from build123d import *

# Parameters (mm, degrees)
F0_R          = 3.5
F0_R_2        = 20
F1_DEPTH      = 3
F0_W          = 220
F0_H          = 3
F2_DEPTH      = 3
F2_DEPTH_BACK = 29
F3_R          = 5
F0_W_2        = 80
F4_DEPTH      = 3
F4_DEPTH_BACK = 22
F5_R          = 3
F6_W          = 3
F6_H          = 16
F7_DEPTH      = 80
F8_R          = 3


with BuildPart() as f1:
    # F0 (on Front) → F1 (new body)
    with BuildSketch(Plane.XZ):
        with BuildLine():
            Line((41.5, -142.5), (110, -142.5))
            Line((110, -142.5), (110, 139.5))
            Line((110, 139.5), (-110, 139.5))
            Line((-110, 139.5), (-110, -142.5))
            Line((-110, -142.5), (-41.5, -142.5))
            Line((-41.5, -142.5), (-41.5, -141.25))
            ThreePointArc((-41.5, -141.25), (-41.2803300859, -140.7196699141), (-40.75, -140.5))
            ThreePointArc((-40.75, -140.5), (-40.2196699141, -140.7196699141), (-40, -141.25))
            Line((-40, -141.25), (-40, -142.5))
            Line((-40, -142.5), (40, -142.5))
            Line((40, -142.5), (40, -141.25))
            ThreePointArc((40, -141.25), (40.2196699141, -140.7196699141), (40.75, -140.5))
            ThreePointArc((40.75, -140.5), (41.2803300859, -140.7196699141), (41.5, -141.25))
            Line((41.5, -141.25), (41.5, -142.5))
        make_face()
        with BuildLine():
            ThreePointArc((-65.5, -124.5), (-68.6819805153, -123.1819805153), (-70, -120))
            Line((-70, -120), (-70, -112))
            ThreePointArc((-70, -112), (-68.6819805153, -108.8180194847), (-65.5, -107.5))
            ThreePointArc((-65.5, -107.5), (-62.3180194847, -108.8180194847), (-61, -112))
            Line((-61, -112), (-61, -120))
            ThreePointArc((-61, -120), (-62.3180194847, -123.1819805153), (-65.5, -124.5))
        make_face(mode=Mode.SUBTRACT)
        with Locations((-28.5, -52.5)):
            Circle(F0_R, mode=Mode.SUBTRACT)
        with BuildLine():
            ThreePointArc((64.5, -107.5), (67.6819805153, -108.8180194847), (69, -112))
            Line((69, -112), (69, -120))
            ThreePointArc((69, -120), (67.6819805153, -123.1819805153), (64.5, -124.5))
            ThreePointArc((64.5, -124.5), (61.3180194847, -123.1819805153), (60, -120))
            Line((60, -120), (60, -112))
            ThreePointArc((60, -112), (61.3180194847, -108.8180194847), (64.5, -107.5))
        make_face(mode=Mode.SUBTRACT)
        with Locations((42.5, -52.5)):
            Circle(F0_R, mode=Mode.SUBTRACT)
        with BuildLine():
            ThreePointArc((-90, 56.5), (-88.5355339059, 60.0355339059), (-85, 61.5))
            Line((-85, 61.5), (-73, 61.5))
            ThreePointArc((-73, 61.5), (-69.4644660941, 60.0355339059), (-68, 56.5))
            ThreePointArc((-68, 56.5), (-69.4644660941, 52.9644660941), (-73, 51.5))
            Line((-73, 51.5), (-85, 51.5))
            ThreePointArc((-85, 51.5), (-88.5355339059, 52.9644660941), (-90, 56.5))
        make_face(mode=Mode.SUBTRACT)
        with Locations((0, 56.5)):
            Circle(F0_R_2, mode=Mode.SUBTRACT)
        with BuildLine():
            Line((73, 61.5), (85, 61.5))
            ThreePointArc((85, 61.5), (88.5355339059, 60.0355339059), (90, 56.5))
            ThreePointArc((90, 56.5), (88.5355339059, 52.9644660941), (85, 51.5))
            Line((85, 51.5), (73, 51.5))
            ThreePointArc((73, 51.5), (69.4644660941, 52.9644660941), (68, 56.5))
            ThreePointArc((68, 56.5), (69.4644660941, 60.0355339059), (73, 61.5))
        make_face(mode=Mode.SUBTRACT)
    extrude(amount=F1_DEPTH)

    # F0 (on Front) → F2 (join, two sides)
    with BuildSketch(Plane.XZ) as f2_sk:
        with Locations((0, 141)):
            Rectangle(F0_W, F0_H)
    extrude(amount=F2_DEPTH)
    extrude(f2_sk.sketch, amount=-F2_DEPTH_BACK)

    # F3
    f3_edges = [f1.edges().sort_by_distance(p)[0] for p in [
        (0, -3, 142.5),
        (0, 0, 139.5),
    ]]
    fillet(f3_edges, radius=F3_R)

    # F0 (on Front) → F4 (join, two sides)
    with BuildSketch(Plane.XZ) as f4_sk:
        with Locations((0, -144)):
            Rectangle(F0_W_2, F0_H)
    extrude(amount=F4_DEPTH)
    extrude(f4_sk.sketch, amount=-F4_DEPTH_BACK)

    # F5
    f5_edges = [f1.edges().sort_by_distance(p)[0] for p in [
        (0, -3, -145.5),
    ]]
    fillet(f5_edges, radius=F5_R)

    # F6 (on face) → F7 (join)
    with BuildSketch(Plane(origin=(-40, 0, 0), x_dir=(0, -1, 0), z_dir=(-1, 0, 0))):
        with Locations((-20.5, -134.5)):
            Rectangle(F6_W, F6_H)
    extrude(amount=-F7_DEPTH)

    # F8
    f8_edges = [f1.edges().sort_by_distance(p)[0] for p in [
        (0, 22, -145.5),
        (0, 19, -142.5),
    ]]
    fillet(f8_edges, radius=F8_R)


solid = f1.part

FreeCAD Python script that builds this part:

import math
import FreeCAD as App
import Part
import Sketcher

V = App.Vector


def edges_at(feature, points):
    """Names of the edges that pass closest to the given points."""
    edges = feature.Shape.Edges
    near = lambda p: min(range(len(edges)), key=lambda i: edges[i].distToShape(Part.Vertex(*p))[0])
    return sorted({f"Edge{near(p) + 1}" for p in points})

doc = App.newDocument("Part")
params = doc.addObject("Spreadsheet::Sheet", "Params")
for row, (alias, value) in enumerate([
    ("sketch1_diameter", "7 mm"),
    ("sketch1_diameter2", "40 mm"),
    ("sketch1_radius", "5 mm"),
    ("sketch1_radius2", "4.5 mm"),
    ("sketch1_width", "220 mm"),
    ("pad1_length", "3 mm"),
    ("sketch2_width", "220 mm"),
    ("sketch2_height", "3 mm"),
    ("pad2_length", "3 mm"),
    ("pad2_length2", "29 mm"),
    ("fillet_radius", "5 mm"),
    ("sketch3_width", "80 mm"),
    ("sketch3_height", "3 mm"),
    ("pad3_length", "3 mm"),
    ("pad3_length2", "22 mm"),
    ("fillet2_radius", "3 mm"),
    ("sketch4_width", "3 mm"),
    ("sketch4_height", "16 mm"),
    ("pad4_length", "80 mm"),
    ("fillet3_radius", "3 mm"),
], start=1):
    params.set(f"A{row}", alias)
    params.set(f"B{row}", "=" + value)
    params.setAlias(f"B{row}", alias)

body = doc.addObject("PartDesign::Body", "Body")

sketch1 = doc.addObject("Sketcher::SketchObject", "Sketch")
body.addObject(sketch1)
sketch1.AttachmentSupport = (doc.XZ_Plane, [""])
sketch1.MapMode = "FlatFace"
sketch1.addGeometry([
    Part.LineSegment(V(41.5, -142.5, 0), V(110, -142.5, 0)),
    Part.LineSegment(V(110, -142.5, 0), V(110, 139.5, 0)),
    Part.LineSegment(V(110, 139.5, 0), V(-110, 139.5, 0)),
    Part.LineSegment(V(-110, 139.5, 0), V(-110, -142.5, 0)),
    Part.LineSegment(V(-110, -142.5, 0), V(-41.5, -142.5, 0)),
    Part.LineSegment(V(-41.5, -142.5, 0), V(-41.5, -141.2, 0)),
    Part.ArcOfCircle(Part.Circle(V(-40.8, -141.2, 0), V(0, 0, 1), 0.8), math.radians(90), math.radians(180)),
    Part.ArcOfCircle(Part.Circle(V(-40.8, -141.2, 0), V(0, 0, 1), 0.8), math.radians(0), math.radians(90)),
    Part.LineSegment(V(-40, -141.2, 0), V(-40, -142.5, 0)),
    Part.LineSegment(V(-40, -142.5, 0), V(40, -142.5, 0)),
    Part.LineSegment(V(40, -142.5, 0), V(40, -141.2, 0)),
    Part.ArcOfCircle(Part.Circle(V(40.8, -141.2, 0), V(0, 0, 1), 0.8), math.radians(90), math.radians(180)),
    Part.ArcOfCircle(Part.Circle(V(40.8, -141.2, 0), V(0, 0, 1), 0.8), math.radians(0), math.radians(90)),
    Part.LineSegment(V(41.5, -141.2, 0), V(41.5, -142.5, 0)),
    Part.ArcOfCircle(Part.Circle(V(-65.5, -120, 0), V(0, 0, 1), 4.5), math.radians(-90), math.radians(0)),
    Part.ArcOfCircle(Part.Circle(V(-65.5, -120, 0), V(0, 0, 1), 4.5), math.radians(180), math.radians(270)),
    Part.LineSegment(V(-70, -120, 0), V(-70, -112, 0)),
    Part.ArcOfCircle(Part.Circle(V(-65.5, -112, 0), V(0, 0, 1), 4.5), math.radians(90), math.radians(180)),
    Part.ArcOfCircle(Part.Circle(V(-65.5, -112, 0), V(0, 0, 1), 4.5), math.radians(0), math.radians(90)),
    Part.LineSegment(V(-61, -112, 0), V(-61, -120, 0)),
    Part.Circle(V(-28.5, -52.5, 0), V(0, 0, 1), 3.5),
    Part.ArcOfCircle(Part.Circle(V(64.5, -112, 0), V(0, 0, 1), 4.5), math.radians(90), math.radians(180)),
    Part.ArcOfCircle(Part.Circle(V(64.5, -112, 0), V(0, 0, 1), 4.5), math.radians(0), math.radians(90)),
    Part.LineSegment(V(69, -112, 0), V(69, -120, 0)),
    Part.ArcOfCircle(Part.Circle(V(64.5, -120, 0), V(0, 0, 1), 4.5), math.radians(-90), math.radians(0)),
    Part.ArcOfCircle(Part.Circle(V(64.5, -120, 0), V(0, 0, 1), 4.5), math.radians(180), math.radians(270)),
    Part.LineSegment(V(60, -120, 0), V(60, -112, 0)),
    Part.Circle(V(42.5, -52.5, 0), V(0, 0, 1), 3.5),
    Part.ArcOfCircle(Part.Circle(V(-85, 56.5, 0), V(0, 0, 1), 5), math.radians(180), math.radians(270)),
    Part.ArcOfCircle(Part.Circle(V(-85, 56.5, 0), V(0, 0, 1), 5), math.radians(90), math.radians(180)),
    Part.LineSegment(V(-85, 61.5, 0), V(-73, 61.5, 0)),
    Part.ArcOfCircle(Part.Circle(V(-73, 56.5, 0), V(0, 0, 1), 5), math.radians(0), math.radians(90)),
    Part.ArcOfCircle(Part.Circle(V(-73, 56.5, 0), V(0, 0, 1), 5), math.radians(-90), math.radians(0)),
    Part.LineSegment(V(-73, 51.5, 0), V(-85, 51.5, 0)),
    Part.Circle(V(0, 56.5, 0), V(0, 0, 1), 20),
    Part.ArcOfCircle(Part.Circle(V(73, 56.5, 0), V(0, 0, 1), 5), math.radians(90), math.radians(180)),
    Part.LineSegment(V(73, 61.5, 0), V(85, 61.5, 0)),
    Part.ArcOfCircle(Part.Circle(V(85, 56.5, 0), V(0, 0, 1), 5), math.radians(0), math.radians(90)),
    Part.ArcOfCircle(Part.Circle(V(85, 56.5, 0), V(0, 0, 1), 5), math.radians(-90), math.radians(0)),
    Part.LineSegment(V(85, 51.5, 0), V(73, 51.5, 0)),
    Part.ArcOfCircle(Part.Circle(V(73, 56.5, 0), V(0, 0, 1), 5), math.radians(180), math.radians(270)),
], False)
sketch1.addConstraint([
    Sketcher.Constraint("Coincident", 0, 2, 1, 1),
    Sketcher.Constraint("Coincident", 1, 2, 2, 1),
    Sketcher.Constraint("Coincident", 2, 2, 3, 1),
    Sketcher.Constraint("Coincident", 3, 2, 4, 1),
    Sketcher.Constraint("Coincident", 4, 2, 5, 1),
    Sketcher.Constraint("Tangent", 5, 2, 6, 2),
    Sketcher.Constraint("Tangent", 6, 1, 7, 2),
    Sketcher.Constraint("Tangent", 7, 1, 8, 1),
    Sketcher.Constraint("Coincident", 8, 2, 9, 1),
    Sketcher.Constraint("Coincident", 9, 2, 10, 1),
    Sketcher.Constraint("Tangent", 10, 2, 11, 2),
    Sketcher.Constraint("Tangent", 11, 1, 12, 2),
    Sketcher.Constraint("Tangent", 12, 1, 13, 1),
    Sketcher.Constraint("Coincident", 13, 2, 0, 1),
    Sketcher.Constraint("Tangent", 14, 1, 15, 2),
    Sketcher.Constraint("Tangent", 15, 1, 16, 1),
    Sketcher.Constraint("Tangent", 16, 2, 17, 2),
    Sketcher.Constraint("Tangent", 17, 1, 18, 2),
    Sketcher.Constraint("Tangent", 18, 1, 19, 1),
    Sketcher.Constraint("Tangent", 19, 2, 14, 2),
    Sketcher.Constraint("Tangent", 21, 1, 22, 2),
    Sketcher.Constraint("Tangent", 22, 1, 23, 1),
    Sketcher.Constraint("Tangent", 23, 2, 24, 2),
    Sketcher.Constraint("Tangent", 24, 1, 25, 2),
    Sketcher.Constraint("Tangent", 25, 1, 26, 1),
    Sketcher.Constraint("Tangent", 26, 2, 21, 2),
    Sketcher.Constraint("Tangent", 28, 1, 29, 2),
    Sketcher.Constraint("Tangent", 29, 1, 30, 1),
    Sketcher.Constraint("Tangent", 30, 2, 31, 2),
    Sketcher.Constraint("Tangent", 31, 1, 32, 2),
    Sketcher.Constraint("Tangent", 32, 1, 33, 1),
    Sketcher.Constraint("Tangent", 33, 2, 28, 2),
    Sketcher.Constraint("Tangent", 35, 1, 36, 1),
    Sketcher.Constraint("Tangent", 36, 2, 37, 2),
    Sketcher.Constraint("Tangent", 37, 1, 38, 2),
    Sketcher.Constraint("Tangent", 38, 1, 39, 1),
    Sketcher.Constraint("Tangent", 39, 2, 40, 2),
    Sketcher.Constraint("Tangent", 40, 1, 35, 2),
    Sketcher.Constraint("Horizontal", 0),
    Sketcher.Constraint("Vertical", 1),
    Sketcher.Constraint("Horizontal", 2),
    Sketcher.Constraint("Vertical", 3),
    Sketcher.Constraint("Horizontal", 4),
    Sketcher.Constraint("Vertical", 5),
    Sketcher.Constraint("Vertical", 8),
    Sketcher.Constraint("Horizontal", 9),
    Sketcher.Constraint("Vertical", 10),
    Sketcher.Constraint("Vertical", 13),
    Sketcher.Constraint("Vertical", 16),
    Sketcher.Constraint("Vertical", 19),
    Sketcher.Constraint("Vertical", 23),
    Sketcher.Constraint("Vertical", 26),
    Sketcher.Constraint("Horizontal", 30),
    Sketcher.Constraint("Horizontal", 33),
    Sketcher.Constraint("Horizontal", 36),
    Sketcher.Constraint("Horizontal", 39),
    Sketcher.Constraint("Equal", 6, 7),
    Sketcher.Constraint("Equal", 7, 11),
    Sketcher.Constraint("Equal", 11, 12),
    Sketcher.Constraint("Equal", 14, 15),
    Sketcher.Constraint("Equal", 15, 17),
    Sketcher.Constraint("Equal", 18, 21),
    Sketcher.Constraint("Equal", 21, 22),
    Sketcher.Constraint("Equal", 22, 24),
    Sketcher.Constraint("Equal", 20, 27),
    Sketcher.Constraint("Equal", 28, 29),
    Sketcher.Constraint("Equal", 29, 31),
    Sketcher.Constraint("Equal", 32, 35),
    Sketcher.Constraint("Equal", 35, 37),
    Sketcher.Constraint("Equal", 37, 38),
    Sketcher.Constraint("Symmetric", 6, 3, 11, 3, -2),
    Sketcher.Constraint("Symmetric", 31, 3, 35, 3, -2),
    Sketcher.Constraint("Symmetric", 0, 2, 3, 2, -2),
    Sketcher.Constraint("Symmetric", 28, 1, 37, 1, -2),
    Sketcher.Constraint("PointOnObject", 34, 3, -2),
    Sketcher.Constraint("Horizontal", 18, 3, 21, 3),
    Sketcher.Constraint("Horizontal", 15, 3, 24, 3),
    Sketcher.Constraint("Horizontal", 20, 3, 27, 3),
    Sketcher.Constraint("Horizontal", 32, 3, 34, 3),
    Sketcher.Constraint("Horizontal", 4, 2, 8, 2),
    Sketcher.Constraint("Horizontal", 40, 3, 28, 1),
    Sketcher.Constraint("Horizontal", 28, 1, 31, 1),
    Sketcher.Constraint("Horizontal", 37, 1, 40, 1),
    Sketcher.Constraint("Vertical", 7, 3, 6, 1),
    Sketcher.Constraint("Vertical", 12, 3, 11, 1),
    Sketcher.Constraint("Vertical", 18, 3, 14, 1),
    Sketcher.Constraint("Vertical", 14, 1, 17, 1),
    Sketcher.Constraint("Vertical", 25, 3, 21, 1),
    Sketcher.Constraint("Vertical", 21, 1, 24, 1),
    Sketcher.Constraint("Diameter", 20, 7.0),
    Sketcher.Constraint("Diameter", 34, 40.0),
    Sketcher.Constraint("Radius", 28, 5.0),
    Sketcher.Constraint("Radius", 14, 4.5),
    Sketcher.Constraint("DistanceX", 2, 2, 2, 1, 220.0),
    Sketcher.Constraint("DistanceX", 9, 1, 9, 2, 80.0),
    Sketcher.Constraint("DistanceX", 30, 1, 30, 2, 12.0),
    Sketcher.Constraint("DistanceY", 1, 1, 1, 2, 282.0),
    Sketcher.Constraint("DistanceY", 16, 1, 16, 2, 8.0),
    Sketcher.Constraint("Radius", 6, 0.75),
    Sketcher.Constraint("DistanceY", 14, 3, -1, 1, 120.0),
    Sketcher.Constraint("DistanceX", 28, 3, -1, 1, 85.0),
    Sketcher.Constraint("DistanceX", 15, 1, -1, 1, 70.0),
    Sketcher.Constraint("DistanceX", -1, 1, 22, 1, 69.0),
    Sketcher.Constraint("DistanceY", 5, 1, 5, 2, 1.25),
    Sketcher.Constraint("DistanceX", 20, 3, -1, 1, 28.5),
    Sketcher.Constraint("DistanceY", 20, 3, -1, 1, 52.5),
    Sketcher.Constraint("DistanceX", -1, 1, 27, 3, 42.5),
    Sketcher.Constraint("DistanceY", -1, 1, 28, 3, 56.5),
    Sketcher.Constraint("DistanceY", 0, 2, -1, 1, 142.5),
])
sketch1.setExpression("Constraints[89]", "Params.sketch1_diameter")
sketch1.setExpression("Constraints[90]", "Params.sketch1_diameter2")
sketch1.setExpression("Constraints[91]", "Params.sketch1_radius")
sketch1.setExpression("Constraints[92]", "Params.sketch1_radius2")
sketch1.setExpression("Constraints[93]", "Params.sketch1_width")
pad1 = doc.addObject("PartDesign::Pad", "Pad")
body.addObject(pad1)
pad1.Profile = sketch1
pad1.setExpression("Length", "Params.pad1_length")

sketch2 = doc.addObject("Sketcher::SketchObject", "Sketch001")
body.addObject(sketch2)
sketch2.AttachmentSupport = (doc.XZ_Plane, [""])
sketch2.MapMode = "FlatFace"
sketch2.addGeometry([
    Part.LineSegment(V(-110, 142.5, 0), V(-110, 139.5, 0)),
    Part.LineSegment(V(-110, 139.5, 0), V(110, 139.5, 0)),
    Part.LineSegment(V(110, 139.5, 0), V(110, 142.5, 0)),
    Part.LineSegment(V(110, 142.5, 0), V(-110, 142.5, 0)),
], False)
sketch2.addConstraint([
    Sketcher.Constraint("Coincident", 0, 2, 1, 1),
    Sketcher.Constraint("Coincident", 1, 2, 2, 1),
    Sketcher.Constraint("Coincident", 2, 2, 3, 1),
    Sketcher.Constraint("Coincident", 3, 2, 0, 1),
    Sketcher.Constraint("Vertical", 0),
    Sketcher.Constraint("Horizontal", 1),
    Sketcher.Constraint("Vertical", 2),
    Sketcher.Constraint("Horizontal", 3),
    Sketcher.Constraint("DistanceX", 1, 1, 1, 2, 220.0),
    Sketcher.Constraint("DistanceY", 0, 2, 0, 1, 3.0),
    Sketcher.Constraint("DistanceX", 0, 2, -1, 1, 110.0),
    Sketcher.Constraint("DistanceY", -1, 1, 0, 2, 139.5),
])
sketch2.setExpression("Constraints[8]", "Params.sketch2_width")
sketch2.setExpression("Constraints[9]", "Params.sketch2_height")
pad2 = doc.addObject("PartDesign::Pad", "Pad001")
body.addObject(pad2)
pad2.Profile = sketch2
pad2.Type = "TwoLengths"
pad2.setExpression("Length", "Params.pad2_length")
pad2.setExpression("Length2", "Params.pad2_length2")
doc.recompute()

fillet = doc.addObject("PartDesign::Fillet", "Fillet")
body.addObject(fillet)
fillet.Base = (pad2, edges_at(pad2, [(0, -3, 142.5), (0, 0, 139.5)]))
fillet.setExpression("Radius", "Params.fillet_radius")

sketch3 = doc.addObject("Sketcher::SketchObject", "Sketch002")
body.addObject(sketch3)
sketch3.AttachmentSupport = (doc.XZ_Plane, [""])
sketch3.MapMode = "FlatFace"
sketch3.addGeometry([
    Part.LineSegment(V(-40, -142.5, 0), V(-40, -145.5, 0)),
    Part.LineSegment(V(-40, -145.5, 0), V(40, -145.5, 0)),
    Part.LineSegment(V(40, -145.5, 0), V(40, -142.5, 0)),
    Part.LineSegment(V(40, -142.5, 0), V(-40, -142.5, 0)),
], False)
sketch3.addConstraint([
    Sketcher.Constraint("Coincident", 0, 2, 1, 1),
    Sketcher.Constraint("Coincident", 1, 2, 2, 1),
    Sketcher.Constraint("Coincident", 2, 2, 3, 1),
    Sketcher.Constraint("Coincident", 3, 2, 0, 1),
    Sketcher.Constraint("Vertical", 0),
    Sketcher.Constraint("Horizontal", 1),
    Sketcher.Constraint("Vertical", 2),
    Sketcher.Constraint("Horizontal", 3),
    Sketcher.Constraint("DistanceX", 1, 1, 1, 2, 80.0),
    Sketcher.Constraint("DistanceY", 0, 2, 0, 1, 3.0),
    Sketcher.Constraint("DistanceX", 0, 2, -1, 1, 40.0),
    Sketcher.Constraint("DistanceY", 0, 2, -1, 1, 145.5),
])
sketch3.setExpression("Constraints[8]", "Params.sketch3_width")
sketch3.setExpression("Constraints[9]", "Params.sketch3_height")
pad3 = doc.addObject("PartDesign::Pad", "Pad002")
body.addObject(pad3)
pad3.Profile = sketch3
pad3.Type = "TwoLengths"
pad3.setExpression("Length", "Params.pad3_length")
pad3.setExpression("Length2", "Params.pad3_length2")
doc.recompute()

fillet2 = doc.addObject("PartDesign::Fillet", "Fillet001")
body.addObject(fillet2)
fillet2.Base = (pad3, edges_at(pad3, [(0, -3, -145.5)]))
fillet2.setExpression("Radius", "Params.fillet2_radius")

sketch4 = doc.addObject("Sketcher::SketchObject", "Sketch003")
body.addObject(sketch4)
sketch4.AttachmentSupport = (doc.YZ_Plane, [""])
sketch4.MapMode = "FlatFace"
sketch4.AttachmentOffset = App.Placement(V(0, 0, -40), App.Rotation())
sketch4.addGeometry([
    Part.LineSegment(V(22, -126.5, 0), V(22, -142.5, 0)),
    Part.LineSegment(V(22, -142.5, 0), V(19, -142.5, 0)),
    Part.LineSegment(V(19, -142.5, 0), V(19, -126.5, 0)),
    Part.LineSegment(V(19, -126.5, 0), V(22, -126.5, 0)),
], False)
sketch4.addConstraint([
    Sketcher.Constraint("Coincident", 0, 2, 1, 1),
    Sketcher.Constraint("Coincident", 1, 2, 2, 1),
    Sketcher.Constraint("Coincident", 2, 2, 3, 1),
    Sketcher.Constraint("Coincident", 3, 2, 0, 1),
    Sketcher.Constraint("Vertical", 0),
    Sketcher.Constraint("Horizontal", 1),
    Sketcher.Constraint("Vertical", 2),
    Sketcher.Constraint("Horizontal", 3),
    Sketcher.Constraint("DistanceX", 1, 2, 1, 1, 3.0),
    Sketcher.Constraint("DistanceY", 0, 2, 0, 1, 16.0),
    Sketcher.Constraint("DistanceX", -1, 1, 0, 2, 22.0),
    Sketcher.Constraint("DistanceY", 0, 2, -1, 1, 142.5),
])
sketch4.setExpression("Constraints[8]", "Params.sketch4_width")
sketch4.setExpression("Constraints[9]", "Params.sketch4_height")
pad4 = doc.addObject("PartDesign::Pad", "Pad003")
body.addObject(pad4)
pad4.Profile = sketch4
pad4.setExpression("Length", "Params.pad4_length")
doc.recompute()

fillet3 = doc.addObject("PartDesign::Fillet", "Fillet002")
body.addObject(fillet3)
fillet3.Base = (pad4, edges_at(pad4, [(0, 22, -145.5), (0, 19, -142.5)]))
fillet3.setExpression("Radius", "Params.fillet3_radius")

doc.recompute()
